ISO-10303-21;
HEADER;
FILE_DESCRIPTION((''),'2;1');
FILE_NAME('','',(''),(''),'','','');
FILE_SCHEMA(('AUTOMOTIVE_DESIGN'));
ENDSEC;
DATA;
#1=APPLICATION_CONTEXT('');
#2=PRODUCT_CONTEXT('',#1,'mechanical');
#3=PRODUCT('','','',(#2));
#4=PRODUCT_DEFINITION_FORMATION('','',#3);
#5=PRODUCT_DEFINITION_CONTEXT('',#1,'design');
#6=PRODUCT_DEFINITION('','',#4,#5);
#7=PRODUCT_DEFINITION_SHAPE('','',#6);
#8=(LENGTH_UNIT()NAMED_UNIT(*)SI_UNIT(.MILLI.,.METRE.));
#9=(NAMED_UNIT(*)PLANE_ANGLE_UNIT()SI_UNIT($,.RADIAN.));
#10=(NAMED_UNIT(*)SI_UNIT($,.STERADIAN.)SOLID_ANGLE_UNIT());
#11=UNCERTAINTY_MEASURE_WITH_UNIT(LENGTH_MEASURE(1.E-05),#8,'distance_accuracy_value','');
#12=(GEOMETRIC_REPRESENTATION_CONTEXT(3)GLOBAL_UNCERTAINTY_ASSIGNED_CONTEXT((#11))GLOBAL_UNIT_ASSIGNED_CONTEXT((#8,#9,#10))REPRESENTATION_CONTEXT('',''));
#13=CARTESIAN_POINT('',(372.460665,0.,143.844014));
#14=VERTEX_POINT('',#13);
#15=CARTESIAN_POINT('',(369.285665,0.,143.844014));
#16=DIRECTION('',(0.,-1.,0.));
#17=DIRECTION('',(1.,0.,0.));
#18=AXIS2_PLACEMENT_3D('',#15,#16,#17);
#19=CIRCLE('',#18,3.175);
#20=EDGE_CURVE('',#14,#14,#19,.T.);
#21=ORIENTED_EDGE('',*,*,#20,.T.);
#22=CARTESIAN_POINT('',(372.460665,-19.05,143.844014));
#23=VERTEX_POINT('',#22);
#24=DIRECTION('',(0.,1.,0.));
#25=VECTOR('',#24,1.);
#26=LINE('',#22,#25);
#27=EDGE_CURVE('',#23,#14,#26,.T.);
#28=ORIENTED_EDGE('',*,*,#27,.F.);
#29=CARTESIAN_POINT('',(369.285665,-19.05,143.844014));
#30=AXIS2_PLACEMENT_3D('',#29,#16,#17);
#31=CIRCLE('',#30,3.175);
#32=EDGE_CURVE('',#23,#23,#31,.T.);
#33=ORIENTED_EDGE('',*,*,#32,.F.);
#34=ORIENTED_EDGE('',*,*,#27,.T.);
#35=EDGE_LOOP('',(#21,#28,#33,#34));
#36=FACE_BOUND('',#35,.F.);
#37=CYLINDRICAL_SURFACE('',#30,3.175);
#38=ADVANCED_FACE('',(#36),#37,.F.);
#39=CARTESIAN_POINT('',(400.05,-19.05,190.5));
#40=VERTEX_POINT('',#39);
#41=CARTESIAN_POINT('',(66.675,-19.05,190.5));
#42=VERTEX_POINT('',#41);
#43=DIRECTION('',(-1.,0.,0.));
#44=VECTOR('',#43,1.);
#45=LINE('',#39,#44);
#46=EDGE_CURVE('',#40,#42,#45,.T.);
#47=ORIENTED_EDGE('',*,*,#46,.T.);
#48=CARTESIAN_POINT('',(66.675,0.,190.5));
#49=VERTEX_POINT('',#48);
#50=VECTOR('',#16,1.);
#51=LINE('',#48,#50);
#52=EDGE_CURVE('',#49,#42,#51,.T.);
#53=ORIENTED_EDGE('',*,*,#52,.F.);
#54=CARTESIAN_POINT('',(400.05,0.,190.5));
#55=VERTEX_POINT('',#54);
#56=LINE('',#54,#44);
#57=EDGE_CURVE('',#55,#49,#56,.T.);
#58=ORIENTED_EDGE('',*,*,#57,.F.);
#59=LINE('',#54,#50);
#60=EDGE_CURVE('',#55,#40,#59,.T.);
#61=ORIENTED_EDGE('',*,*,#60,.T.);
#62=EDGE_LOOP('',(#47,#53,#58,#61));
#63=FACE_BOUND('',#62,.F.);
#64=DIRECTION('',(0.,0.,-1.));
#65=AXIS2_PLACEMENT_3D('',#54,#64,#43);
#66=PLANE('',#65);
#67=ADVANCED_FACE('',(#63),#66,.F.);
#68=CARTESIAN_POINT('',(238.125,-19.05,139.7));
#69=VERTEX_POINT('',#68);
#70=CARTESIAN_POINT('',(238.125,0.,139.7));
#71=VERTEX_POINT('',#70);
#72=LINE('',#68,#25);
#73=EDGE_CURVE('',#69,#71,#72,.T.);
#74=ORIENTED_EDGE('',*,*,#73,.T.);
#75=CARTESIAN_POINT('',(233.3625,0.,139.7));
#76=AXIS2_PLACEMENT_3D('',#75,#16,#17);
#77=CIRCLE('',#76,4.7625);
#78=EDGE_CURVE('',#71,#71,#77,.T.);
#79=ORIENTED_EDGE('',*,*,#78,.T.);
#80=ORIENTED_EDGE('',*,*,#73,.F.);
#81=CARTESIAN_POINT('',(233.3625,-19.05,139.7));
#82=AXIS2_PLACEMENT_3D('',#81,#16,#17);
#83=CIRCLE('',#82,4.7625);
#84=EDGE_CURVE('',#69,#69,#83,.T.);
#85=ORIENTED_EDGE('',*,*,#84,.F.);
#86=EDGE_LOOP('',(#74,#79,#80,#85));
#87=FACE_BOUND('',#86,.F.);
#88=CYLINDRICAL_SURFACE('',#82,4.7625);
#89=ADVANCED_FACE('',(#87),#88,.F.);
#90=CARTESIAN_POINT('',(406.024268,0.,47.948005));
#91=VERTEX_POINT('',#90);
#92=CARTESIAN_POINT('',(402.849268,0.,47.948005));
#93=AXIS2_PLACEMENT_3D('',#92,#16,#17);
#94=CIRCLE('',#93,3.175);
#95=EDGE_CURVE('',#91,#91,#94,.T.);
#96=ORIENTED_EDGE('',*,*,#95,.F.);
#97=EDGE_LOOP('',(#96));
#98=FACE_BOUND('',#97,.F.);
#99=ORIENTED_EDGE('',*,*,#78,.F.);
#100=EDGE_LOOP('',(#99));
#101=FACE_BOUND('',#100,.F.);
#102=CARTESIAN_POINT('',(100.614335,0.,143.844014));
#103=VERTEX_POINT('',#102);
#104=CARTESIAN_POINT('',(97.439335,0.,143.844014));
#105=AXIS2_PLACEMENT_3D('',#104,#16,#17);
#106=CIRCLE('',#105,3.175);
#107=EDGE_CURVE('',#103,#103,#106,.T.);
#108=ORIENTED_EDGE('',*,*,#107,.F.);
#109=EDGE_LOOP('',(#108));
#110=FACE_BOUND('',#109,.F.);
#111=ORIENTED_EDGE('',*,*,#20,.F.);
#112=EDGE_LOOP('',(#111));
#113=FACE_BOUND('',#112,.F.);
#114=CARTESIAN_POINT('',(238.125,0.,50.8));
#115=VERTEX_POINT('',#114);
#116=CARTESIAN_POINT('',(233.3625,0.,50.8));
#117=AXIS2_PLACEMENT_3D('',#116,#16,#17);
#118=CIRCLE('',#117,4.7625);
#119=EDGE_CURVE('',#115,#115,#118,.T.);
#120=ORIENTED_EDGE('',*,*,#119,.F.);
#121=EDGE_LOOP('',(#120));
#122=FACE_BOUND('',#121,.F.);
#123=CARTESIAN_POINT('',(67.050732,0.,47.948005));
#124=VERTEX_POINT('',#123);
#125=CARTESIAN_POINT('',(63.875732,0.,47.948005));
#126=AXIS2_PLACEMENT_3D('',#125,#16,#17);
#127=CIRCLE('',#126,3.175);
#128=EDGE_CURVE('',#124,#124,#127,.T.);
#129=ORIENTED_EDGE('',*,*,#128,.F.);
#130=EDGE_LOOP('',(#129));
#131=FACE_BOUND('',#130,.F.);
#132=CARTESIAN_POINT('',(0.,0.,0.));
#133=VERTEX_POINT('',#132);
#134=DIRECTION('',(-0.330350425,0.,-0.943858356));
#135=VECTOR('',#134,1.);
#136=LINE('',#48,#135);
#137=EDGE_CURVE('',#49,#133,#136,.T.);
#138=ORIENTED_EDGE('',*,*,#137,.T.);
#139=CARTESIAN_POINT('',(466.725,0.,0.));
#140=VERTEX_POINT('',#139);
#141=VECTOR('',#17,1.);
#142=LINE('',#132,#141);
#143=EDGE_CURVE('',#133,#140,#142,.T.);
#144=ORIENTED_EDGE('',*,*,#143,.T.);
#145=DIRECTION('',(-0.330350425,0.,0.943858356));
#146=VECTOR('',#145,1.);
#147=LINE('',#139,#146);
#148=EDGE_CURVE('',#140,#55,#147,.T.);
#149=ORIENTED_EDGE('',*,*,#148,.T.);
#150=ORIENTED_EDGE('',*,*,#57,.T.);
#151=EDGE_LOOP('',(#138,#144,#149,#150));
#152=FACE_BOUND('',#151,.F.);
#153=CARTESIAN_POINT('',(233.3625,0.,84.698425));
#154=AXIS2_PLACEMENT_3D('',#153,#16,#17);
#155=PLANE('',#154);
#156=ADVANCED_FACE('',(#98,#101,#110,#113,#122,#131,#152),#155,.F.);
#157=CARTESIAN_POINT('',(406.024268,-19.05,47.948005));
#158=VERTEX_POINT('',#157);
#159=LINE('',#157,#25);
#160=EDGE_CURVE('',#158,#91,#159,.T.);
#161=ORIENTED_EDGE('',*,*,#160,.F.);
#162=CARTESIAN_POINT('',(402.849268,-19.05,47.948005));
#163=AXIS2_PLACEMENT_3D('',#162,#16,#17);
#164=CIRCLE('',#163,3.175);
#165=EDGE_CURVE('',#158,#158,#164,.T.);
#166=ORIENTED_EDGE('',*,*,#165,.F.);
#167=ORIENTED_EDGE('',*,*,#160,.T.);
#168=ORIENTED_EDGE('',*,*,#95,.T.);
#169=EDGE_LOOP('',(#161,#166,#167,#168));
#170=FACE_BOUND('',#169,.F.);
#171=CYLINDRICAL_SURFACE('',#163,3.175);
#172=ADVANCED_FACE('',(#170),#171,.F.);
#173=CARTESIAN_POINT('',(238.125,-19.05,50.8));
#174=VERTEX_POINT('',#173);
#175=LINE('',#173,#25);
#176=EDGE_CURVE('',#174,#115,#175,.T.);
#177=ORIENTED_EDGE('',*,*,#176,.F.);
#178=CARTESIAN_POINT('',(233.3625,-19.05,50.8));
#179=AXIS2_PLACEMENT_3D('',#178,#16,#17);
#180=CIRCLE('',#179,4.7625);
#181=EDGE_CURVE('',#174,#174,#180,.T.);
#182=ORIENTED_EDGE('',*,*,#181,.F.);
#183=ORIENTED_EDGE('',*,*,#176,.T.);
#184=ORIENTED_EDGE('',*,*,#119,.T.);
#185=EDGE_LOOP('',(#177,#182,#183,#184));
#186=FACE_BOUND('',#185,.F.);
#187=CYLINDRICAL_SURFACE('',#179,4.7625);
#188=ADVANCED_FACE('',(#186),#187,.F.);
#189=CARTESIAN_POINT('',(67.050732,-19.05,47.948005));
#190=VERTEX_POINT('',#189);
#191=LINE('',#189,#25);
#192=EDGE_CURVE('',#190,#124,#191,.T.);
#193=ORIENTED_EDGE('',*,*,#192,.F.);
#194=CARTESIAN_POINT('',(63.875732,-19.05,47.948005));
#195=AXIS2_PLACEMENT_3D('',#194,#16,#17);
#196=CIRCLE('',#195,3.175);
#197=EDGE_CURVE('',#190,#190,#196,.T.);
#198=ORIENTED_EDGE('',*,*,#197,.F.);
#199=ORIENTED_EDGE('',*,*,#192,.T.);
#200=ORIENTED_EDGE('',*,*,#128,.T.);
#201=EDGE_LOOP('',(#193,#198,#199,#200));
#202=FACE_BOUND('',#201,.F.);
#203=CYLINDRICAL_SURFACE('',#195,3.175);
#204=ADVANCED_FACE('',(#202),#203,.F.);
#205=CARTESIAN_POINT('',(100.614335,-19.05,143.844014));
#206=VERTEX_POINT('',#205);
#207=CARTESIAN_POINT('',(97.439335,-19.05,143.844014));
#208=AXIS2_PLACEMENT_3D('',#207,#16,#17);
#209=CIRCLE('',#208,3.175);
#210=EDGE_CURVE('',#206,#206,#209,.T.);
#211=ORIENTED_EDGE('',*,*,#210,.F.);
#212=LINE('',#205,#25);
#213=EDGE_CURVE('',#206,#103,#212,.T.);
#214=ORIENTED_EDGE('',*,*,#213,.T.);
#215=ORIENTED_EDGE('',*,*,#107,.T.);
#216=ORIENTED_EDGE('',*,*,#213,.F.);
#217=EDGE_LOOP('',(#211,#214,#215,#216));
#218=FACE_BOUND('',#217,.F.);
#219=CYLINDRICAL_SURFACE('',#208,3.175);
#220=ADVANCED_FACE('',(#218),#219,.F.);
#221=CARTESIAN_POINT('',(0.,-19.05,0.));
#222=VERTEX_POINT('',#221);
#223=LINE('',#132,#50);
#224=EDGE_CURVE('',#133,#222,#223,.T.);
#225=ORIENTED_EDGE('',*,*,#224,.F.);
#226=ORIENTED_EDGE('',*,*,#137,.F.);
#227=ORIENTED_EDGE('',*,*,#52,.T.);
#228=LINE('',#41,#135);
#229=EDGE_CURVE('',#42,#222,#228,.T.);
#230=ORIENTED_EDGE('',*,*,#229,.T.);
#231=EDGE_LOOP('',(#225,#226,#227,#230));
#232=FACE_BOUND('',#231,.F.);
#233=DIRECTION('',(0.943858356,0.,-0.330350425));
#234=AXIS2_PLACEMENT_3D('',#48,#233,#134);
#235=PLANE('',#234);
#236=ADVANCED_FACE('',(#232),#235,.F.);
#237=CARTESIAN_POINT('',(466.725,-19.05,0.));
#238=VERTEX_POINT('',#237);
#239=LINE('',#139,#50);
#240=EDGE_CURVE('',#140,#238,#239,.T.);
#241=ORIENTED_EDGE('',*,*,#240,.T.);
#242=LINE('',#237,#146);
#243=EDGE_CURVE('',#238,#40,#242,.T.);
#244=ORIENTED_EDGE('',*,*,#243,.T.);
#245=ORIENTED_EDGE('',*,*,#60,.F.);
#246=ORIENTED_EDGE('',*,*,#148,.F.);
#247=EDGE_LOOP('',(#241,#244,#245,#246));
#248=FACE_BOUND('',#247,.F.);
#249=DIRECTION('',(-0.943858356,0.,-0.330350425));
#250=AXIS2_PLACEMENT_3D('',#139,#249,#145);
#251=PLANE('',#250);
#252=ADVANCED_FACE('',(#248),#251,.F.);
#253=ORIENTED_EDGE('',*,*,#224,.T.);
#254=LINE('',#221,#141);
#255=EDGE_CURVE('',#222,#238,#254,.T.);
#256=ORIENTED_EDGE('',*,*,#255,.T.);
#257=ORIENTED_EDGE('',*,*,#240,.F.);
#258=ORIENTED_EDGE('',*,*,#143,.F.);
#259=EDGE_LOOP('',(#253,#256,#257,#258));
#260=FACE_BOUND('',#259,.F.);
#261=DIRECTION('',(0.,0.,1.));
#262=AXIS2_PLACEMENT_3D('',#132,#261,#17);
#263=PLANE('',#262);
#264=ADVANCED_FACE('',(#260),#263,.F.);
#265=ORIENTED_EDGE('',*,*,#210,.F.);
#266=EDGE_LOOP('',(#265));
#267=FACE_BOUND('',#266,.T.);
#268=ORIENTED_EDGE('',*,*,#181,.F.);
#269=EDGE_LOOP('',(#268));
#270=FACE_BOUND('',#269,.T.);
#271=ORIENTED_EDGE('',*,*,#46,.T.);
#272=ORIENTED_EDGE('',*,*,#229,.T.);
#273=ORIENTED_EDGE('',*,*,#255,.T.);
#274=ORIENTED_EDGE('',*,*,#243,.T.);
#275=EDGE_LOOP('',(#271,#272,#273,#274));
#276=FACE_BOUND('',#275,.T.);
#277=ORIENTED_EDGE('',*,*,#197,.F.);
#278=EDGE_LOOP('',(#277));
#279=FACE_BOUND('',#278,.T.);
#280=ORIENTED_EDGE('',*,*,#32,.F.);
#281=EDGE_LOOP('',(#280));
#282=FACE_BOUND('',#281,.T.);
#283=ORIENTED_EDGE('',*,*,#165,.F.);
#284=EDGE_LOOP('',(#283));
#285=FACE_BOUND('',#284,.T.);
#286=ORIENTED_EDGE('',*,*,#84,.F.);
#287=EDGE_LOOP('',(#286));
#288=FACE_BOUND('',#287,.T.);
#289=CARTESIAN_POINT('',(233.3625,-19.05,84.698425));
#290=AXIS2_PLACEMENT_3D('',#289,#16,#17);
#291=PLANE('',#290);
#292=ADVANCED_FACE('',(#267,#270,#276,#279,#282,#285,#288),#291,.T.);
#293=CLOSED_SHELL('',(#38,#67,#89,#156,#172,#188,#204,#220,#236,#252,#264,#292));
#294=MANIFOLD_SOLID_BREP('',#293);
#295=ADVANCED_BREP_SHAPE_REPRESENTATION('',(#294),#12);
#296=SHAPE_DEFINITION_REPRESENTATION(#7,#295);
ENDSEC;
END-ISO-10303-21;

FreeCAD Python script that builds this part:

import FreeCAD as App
import Part
import Sketcher
Q = App.Units.Quantity

doc = App.newDocument("Part")
params = doc.addObject("Spreadsheet::Sheet", "Params")
for row, (alias, value) in enumerate([
    ("sketch1_width", "18.375 in"),
    ("sketch1_width2", "13.125 in"),
    ("pad1_length", "0.75 in"),
    ("sketch2_diameter", "0.25 in"),
    ("sketch2_diameter2", "0.375 in"),
    ("pocket1_length", "1 in"),
], start=1):
    params.set(f"A{row}", alias)
    params.set(f"B{row}", "=" + value)
    params.setAlias(f"B{row}", alias)

body = doc.addObject("PartDesign::Body", "Body")

# Sketch on XZ plane
sketch1 = doc.addObject("Sketcher::SketchObject", "Sketch")
body.addObject(sketch1)
sketch1.AttachmentSupport = (doc.XZ_Plane, [""])
sketch1.MapMode = "FlatFace"
sketch1.addGeometry(Part.LineSegment(App.Vector(66.675, 190.5, 0), App.Vector(0, 0, 0)), False)
sketch1.addGeometry(Part.LineSegment(App.Vector(0, 0, 0), App.Vector(466.725, 0, 0)), False)
sketch1.addGeometry(Part.LineSegment(App.Vector(466.725, 0, 0), App.Vector(400.05, 190.5, 0)), False)
sketch1.addGeometry(Part.LineSegment(App.Vector(400.05, 190.5, 0), App.Vector(66.675, 190.5, 0)), False)
sketch1.addConstraint(Sketcher.Constraint("Coincident", 0, 2, 1, 1))
sketch1.addConstraint(Sketcher.Constraint("Coincident", 1, 2, 2, 1))
sketch1.addConstraint(Sketcher.Constraint("Coincident", 2, 2, 3, 1))
sketch1.addConstraint(Sketcher.Constraint("Coincident", 3, 2, 0, 1))
sketch1.addConstraint(Sketcher.Constraint("Horizontal", 1))
sketch1.addConstraint(Sketcher.Constraint("Horizontal", 3))
sketch1.addConstraint(Sketcher.Constraint("Coincident", 0, 2, -1, 1))
sketch1.addConstraint(Sketcher.Constraint("Equal", 0, 2))
sketch1.addConstraint(Sketcher.Constraint("DistanceY", -1, 1, 2, 2, Q("7.5 in")))
sketch1.addConstraint(Sketcher.Constraint("DistanceX", 1, 1, 1, 2, Q("18.375 in")))
sketch1.addConstraint(Sketcher.Constraint("DistanceX", 3, 2, 3, 1, Q("13.125 in")))
sketch1.setExpression("Constraints[9]", "Params.sketch1_width")
sketch1.setExpression("Constraints[10]", "Params.sketch1_width2")
pad1 = doc.addObject("PartDesign::Pad", "Pad")
body.addObject(pad1)
pad1.Profile = sketch1
pad1.setExpression("Length", "Params.pad1_length")

# Sketch on XZ plane
sketch2 = doc.addObject("Sketcher::SketchObject", "Sketch001")
body.addObject(sketch2)
sketch2.AttachmentSupport = (doc.XZ_Plane, [""])
sketch2.MapMode = "FlatFace"
sketch2.AttachmentOffset = App.Placement(App.Vector(0, 0, 0.75 * 25.4), App.Rotation())
sketch2.addGeometry(Part.Circle(App.Vector(97.439335, 143.844014, 0), App.Vector(0, 0, 1), 3.175), False)
sketch2.addGeometry(Part.Circle(App.Vector(63.875732, 47.948005, 0), App.Vector(0, 0, 1), 3.175), False)
sketch2.addGeometry(Part.Circle(App.Vector(369.285665, 143.844014, 0), App.Vector(0, 0, 1), 3.175), False)
sketch2.addGeometry(Part.Circle(App.Vector(402.849268, 47.948005, 0), App.Vector(0, 0, 1), 3.175), False)
sketch2.addGeometry(Part.Circle(App.Vector(233.3625, 139.7, 0), App.Vector(0, 0, 1), 4.7625), False)
sketch2.addGeometry(Part.Circle(App.Vector(233.3625, 50.8, 0), App.Vector(0, 0, 1), 4.7625), False)
sketch2.addConstraint(Sketcher.Constraint("Equal", 0, 1))
sketch2.addConstraint(Sketcher.Constraint("Equal", 1, 2))
sketch2.addConstraint(Sketcher.Constraint("Equal", 2, 3))
sketch2.addConstraint(Sketcher.Constraint("Equal", 4, 5))
sketch2.addConstraint(Sketcher.Constraint("Horizontal", 0, 3, 2, 3))
sketch2.addConstraint(Sketcher.Constraint("Horizontal", 1, 3, 3, 3))
sketch2.addConstraint(Sketcher.Constraint("Vertical", 4, 3, 5, 3))
sketch2.addConstraint(Sketcher.Constraint("Diameter", 0, Q("0.25 in")))
sketch2.addConstraint(Sketcher.Constraint("Diameter", 4, Q("0.375 in")))
sketch2.addConstraint(Sketcher.Constraint("DistanceY", -1, 1, 5, 3, Q("2 in")))
sketch2.addConstraint(Sketcher.Constraint("DistanceY", -1, 1, 4, 3, Q("5.5 in")))
sketch2.addConstraint(Sketcher.Constraint("DistanceX", -1, 1, 4, 3, Q("9.1875 in")))
sketch2.addConstraint(Sketcher.Constraint("DistanceX", -1, 1, 3, 3, Q("402.849268 mm")))
sketch2.addConstraint(Sketcher.Constraint("DistanceY", 1, 3, 0, 3, Q("95.896009 mm")))
sketch2.addConstraint(Sketcher.Constraint("DistanceX", 0, 3, 2, 3, Q("271.84633 mm")))
sketch2.addConstraint(Sketcher.Constraint("DistanceX", 1, 3, 4, 3, Q("169.486768 mm")))
sketch2.addConstraint(Sketcher.Constraint("DistanceX", -1, 1, 0, 3, Q("97.439335 mm")))
sketch2.addConstraint(Sketcher.Constraint("DistanceY", -1, 1, 0, 3, Q("143.844014 mm")))
sketch2.setExpression("Constraints[7]", "Params.sketch2_diameter")
sketch2.setExpression("Constraints[8]", "Params.sketch2_diameter2")
pocket1 = doc.addObject("PartDesign::Pocket", "Pocket")
body.addObject(pocket1)
pocket1.Profile = sketch2
pocket1.setExpression("Length", "Params.pocket1_length")

doc.recompute()
